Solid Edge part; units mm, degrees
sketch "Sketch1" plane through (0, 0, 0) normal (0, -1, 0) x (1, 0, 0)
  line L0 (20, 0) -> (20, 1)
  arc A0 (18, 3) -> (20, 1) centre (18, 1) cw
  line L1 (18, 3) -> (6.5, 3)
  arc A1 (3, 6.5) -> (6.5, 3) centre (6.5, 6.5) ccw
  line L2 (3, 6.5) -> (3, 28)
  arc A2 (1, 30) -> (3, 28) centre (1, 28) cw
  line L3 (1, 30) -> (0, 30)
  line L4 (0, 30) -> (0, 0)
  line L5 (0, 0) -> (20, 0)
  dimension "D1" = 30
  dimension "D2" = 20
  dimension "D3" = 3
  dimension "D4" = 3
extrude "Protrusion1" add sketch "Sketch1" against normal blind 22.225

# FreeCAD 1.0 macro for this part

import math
import FreeCAD as App
import Part
import Sketcher
from FreeCAD import Vector
Q = App.Units.Quantity

doc = App.newDocument("Part")
body = doc.addObject("PartDesign::Body", "Body")

sketch1 = doc.addObject("Sketcher::SketchObject", "Sketch")
body.addObject(sketch1)
sketch1.AttachmentSupport = (doc.XZ_Plane, [""])
sketch1.MapMode = "FlatFace"
sketch1.addGeometry([
    Part.LineSegment(Vector(0, 0, 0), Vector(20, 0, 0)),
    Part.LineSegment(Vector(20, 0, 0), Vector(20, 1, 0)),
    Part.ArcOfCircle(Part.Circle(Vector(18, 1, 0), Vector(0, 0, 1), 2), math.radians(0), math.radians(90)),
    Part.LineSegment(Vector(18, 3, 0), Vector(6.5, 3, 0)),
    Part.ArcOfCircle(Part.Circle(Vector(6.5, 6.5, 0), Vector(0, 0, 1), 3.5), math.radians(180), math.radians(270)),
    Part.LineSegment(Vector(3, 6.5, 0), Vector(3, 28, 0)),
    Part.ArcOfCircle(Part.Circle(Vector(1, 28, 0), Vector(0, 0, 1), 2), math.radians(0), math.radians(90)),
    Part.LineSegment(Vector(1, 30, 0), Vector(0, 30, 0)),
    Part.LineSegment(Vector(0, 30, 0), Vector(0, 0, 0)),
], False)
sketch1.addConstraint([
    Sketcher.Constraint("Coincident", 0, 2, 1, 1),
    Sketcher.Constraint("Tangent", 1, 2, 2, 1),
    Sketcher.Constraint("Tangent", 2, 2, 3, 1),
    Sketcher.Constraint("Tangent", 3, 2, 4, 2),
    Sketcher.Constraint("Tangent", 4, 1, 5, 1),
    Sketcher.Constraint("Tangent", 5, 2, 6, 1),
    Sketcher.Constraint("Tangent", 6, 2, 7, 1),
    Sketcher.Constraint("Coincident", 7, 2, 8, 1),
    Sketcher.Constraint("Coincident", 8, 2, 0, 1),
    Sketcher.Constraint("Horizontal", 0),
    Sketcher.Constraint("Vertical", 1),
    Sketcher.Constraint("Horizontal", 3),
    Sketcher.Constraint("Vertical", 5),
    Sketcher.Constraint("Horizontal", 7),
    Sketcher.Constraint("Vertical", 8),
    Sketcher.Constraint("Coincident", 8, 2, -1, 1),
    Sketcher.Constraint("Equal", 2, 6),
    Sketcher.Constraint("Equal", 7, 1),
    Sketcher.Constraint("Radius", 2, Q("2 mm")),
    Sketcher.Constraint("Radius", 4, Q("3.5 mm")),
    Sketcher.Constraint("DistanceX", 0, 1, 0, 2, Q("20 mm")),
    Sketcher.Constraint("DistanceX", 7, 2, 7, 1, Q("1 mm")),
    Sketcher.Constraint("DistanceY", 8, 2, 8, 1, Q("30 mm")),
])
pad1 = doc.addObject("PartDesign::Pad", "Pad")
body.addObject(pad1)
pad1.Profile = sketch1
pad1.Length = 22.225
pad1.Reversed = True

doc.recompute()
